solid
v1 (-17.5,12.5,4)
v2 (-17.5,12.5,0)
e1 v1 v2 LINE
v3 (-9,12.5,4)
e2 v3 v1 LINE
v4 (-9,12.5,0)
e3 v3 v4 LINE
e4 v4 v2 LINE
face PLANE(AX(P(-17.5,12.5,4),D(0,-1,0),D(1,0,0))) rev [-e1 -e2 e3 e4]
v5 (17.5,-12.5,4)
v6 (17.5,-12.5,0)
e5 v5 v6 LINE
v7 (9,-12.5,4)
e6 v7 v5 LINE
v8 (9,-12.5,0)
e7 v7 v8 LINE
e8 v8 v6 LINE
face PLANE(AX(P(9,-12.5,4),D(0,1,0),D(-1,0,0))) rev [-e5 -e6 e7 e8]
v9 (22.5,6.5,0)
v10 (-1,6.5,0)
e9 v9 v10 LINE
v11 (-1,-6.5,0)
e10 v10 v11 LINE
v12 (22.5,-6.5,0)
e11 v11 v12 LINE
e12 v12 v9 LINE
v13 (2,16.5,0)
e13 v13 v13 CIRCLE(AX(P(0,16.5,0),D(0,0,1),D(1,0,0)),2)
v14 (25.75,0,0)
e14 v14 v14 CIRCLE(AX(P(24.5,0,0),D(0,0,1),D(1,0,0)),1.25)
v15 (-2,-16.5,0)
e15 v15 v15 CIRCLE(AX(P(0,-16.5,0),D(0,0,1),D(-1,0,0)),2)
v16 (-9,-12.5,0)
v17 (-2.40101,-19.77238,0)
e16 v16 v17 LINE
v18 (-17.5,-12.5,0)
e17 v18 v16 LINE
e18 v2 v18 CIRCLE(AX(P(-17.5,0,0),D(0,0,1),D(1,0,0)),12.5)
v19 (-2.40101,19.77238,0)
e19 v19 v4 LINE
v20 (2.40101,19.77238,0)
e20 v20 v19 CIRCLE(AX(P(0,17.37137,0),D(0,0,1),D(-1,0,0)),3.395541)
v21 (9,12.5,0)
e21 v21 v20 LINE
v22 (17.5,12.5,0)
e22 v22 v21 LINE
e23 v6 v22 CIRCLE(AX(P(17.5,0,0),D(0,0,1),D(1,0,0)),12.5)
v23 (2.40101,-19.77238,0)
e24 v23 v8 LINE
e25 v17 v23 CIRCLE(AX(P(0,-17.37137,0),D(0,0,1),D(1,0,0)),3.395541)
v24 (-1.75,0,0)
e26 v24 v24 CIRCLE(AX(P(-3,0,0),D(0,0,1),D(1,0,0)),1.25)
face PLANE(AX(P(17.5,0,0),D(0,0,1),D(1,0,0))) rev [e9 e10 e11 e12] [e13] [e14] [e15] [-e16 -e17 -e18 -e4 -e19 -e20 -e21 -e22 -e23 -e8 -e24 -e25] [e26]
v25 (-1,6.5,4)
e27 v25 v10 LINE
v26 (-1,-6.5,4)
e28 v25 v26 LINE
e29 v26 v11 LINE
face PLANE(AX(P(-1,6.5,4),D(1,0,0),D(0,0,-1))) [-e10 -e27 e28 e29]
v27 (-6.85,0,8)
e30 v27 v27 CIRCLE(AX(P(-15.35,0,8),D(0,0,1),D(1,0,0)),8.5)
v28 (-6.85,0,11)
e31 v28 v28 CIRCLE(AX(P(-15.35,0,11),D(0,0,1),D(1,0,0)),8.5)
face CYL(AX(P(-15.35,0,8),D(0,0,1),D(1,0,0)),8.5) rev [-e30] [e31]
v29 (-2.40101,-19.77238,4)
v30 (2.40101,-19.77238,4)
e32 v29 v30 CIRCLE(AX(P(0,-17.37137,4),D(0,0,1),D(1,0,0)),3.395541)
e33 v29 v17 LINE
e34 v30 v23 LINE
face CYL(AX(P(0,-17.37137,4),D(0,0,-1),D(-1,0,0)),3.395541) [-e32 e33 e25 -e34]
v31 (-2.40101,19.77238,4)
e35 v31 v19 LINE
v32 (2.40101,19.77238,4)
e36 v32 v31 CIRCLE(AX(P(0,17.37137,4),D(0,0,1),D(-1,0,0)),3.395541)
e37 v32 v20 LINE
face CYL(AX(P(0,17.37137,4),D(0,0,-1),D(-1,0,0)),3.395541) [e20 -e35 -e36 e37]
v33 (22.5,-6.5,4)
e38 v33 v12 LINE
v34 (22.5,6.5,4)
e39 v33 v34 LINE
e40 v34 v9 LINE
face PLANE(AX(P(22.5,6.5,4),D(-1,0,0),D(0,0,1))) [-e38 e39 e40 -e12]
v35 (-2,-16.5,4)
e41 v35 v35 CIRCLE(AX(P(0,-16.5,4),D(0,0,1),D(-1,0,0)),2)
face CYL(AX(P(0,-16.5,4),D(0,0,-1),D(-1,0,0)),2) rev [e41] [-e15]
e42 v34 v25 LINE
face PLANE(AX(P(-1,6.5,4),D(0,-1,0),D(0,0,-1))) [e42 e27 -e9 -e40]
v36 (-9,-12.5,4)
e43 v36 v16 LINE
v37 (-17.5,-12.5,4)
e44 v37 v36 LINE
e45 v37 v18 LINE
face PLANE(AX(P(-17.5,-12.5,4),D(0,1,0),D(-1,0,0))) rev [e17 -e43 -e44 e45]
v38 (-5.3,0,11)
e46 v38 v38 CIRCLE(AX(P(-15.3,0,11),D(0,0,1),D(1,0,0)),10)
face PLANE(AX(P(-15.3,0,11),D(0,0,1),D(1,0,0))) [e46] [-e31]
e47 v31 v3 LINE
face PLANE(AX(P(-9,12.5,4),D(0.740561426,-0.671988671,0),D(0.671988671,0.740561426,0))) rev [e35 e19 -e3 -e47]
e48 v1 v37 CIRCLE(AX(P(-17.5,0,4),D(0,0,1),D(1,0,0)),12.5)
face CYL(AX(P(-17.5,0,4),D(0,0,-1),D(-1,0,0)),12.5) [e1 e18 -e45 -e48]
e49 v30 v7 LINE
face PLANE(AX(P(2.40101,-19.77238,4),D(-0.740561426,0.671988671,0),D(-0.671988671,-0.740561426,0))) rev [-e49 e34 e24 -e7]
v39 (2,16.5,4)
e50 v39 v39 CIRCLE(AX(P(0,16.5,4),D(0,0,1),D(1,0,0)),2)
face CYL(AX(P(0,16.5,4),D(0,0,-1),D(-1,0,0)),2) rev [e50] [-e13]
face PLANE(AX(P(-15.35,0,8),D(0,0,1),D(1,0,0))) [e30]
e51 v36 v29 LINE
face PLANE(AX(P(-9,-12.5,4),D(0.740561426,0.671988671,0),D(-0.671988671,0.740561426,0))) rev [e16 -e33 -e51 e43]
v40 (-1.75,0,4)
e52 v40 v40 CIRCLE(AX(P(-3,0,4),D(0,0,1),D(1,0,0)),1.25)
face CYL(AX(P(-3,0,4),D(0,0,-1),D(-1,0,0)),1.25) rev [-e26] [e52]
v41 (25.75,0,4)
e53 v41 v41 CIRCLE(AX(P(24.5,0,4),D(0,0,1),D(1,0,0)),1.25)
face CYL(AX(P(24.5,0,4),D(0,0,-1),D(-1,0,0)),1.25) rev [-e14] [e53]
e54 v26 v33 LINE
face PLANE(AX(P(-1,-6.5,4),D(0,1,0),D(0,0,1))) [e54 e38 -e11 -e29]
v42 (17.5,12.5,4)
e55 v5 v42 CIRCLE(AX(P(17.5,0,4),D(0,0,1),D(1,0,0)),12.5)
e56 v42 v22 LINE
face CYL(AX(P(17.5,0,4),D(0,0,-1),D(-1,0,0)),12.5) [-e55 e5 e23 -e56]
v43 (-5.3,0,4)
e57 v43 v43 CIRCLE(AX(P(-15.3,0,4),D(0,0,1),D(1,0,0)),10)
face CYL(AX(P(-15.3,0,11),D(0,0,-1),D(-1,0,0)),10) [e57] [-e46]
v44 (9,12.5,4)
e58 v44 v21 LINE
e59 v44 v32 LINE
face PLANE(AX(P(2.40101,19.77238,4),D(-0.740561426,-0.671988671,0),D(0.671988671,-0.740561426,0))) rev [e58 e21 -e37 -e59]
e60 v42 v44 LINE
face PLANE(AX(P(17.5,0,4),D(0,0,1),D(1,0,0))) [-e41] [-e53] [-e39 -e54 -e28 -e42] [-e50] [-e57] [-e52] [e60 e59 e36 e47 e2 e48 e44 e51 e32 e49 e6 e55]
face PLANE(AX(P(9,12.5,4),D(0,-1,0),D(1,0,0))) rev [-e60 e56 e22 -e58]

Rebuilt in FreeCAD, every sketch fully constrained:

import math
import FreeCAD as App
import Part
import Sketcher
from FreeCAD import Vector
Q = App.Units.Quantity

doc = App.newDocument("Part")
params = doc.addObject("Spreadsheet::Sheet", "Params")
for row, (alias, value) in enumerate([
    ("sketch1_diameter", "4 mm"),
    ("sketch1_diameter2", "2.5 mm"),
    ("sketch1_radius", "12.5 mm"),
    ("sketch1_height", "13 mm"),
    ("sketch1_width", "8.5 mm"),
    ("pad1_length", "4 mm"),
    ("sketch2_diameter", "20 mm"),
    ("pad2_length", "7 mm"),
    ("sketch3_diameter", "17 mm"),
    ("pocket1_length", "3 mm"),
], start=1):
    params.set(f"A{row}", alias)
    params.set(f"B{row}", "=" + value)
    params.setAlias(f"B{row}", alias)

body = doc.addObject("PartDesign::Body", "Body")

# Sketch on XY plane
sketch1 = doc.addObject("Sketcher::SketchObject", "Sketch")
body.addObject(sketch1)
sketch1.AttachmentSupport = (doc.XY_Plane, [""])
sketch1.MapMode = "FlatFace"
sketch1.addGeometry(Part.LineSegment(Vector(-2.4, 19.8, 0), Vector(-9, 12.5, 0)), False)
sketch1.addGeometry(Part.LineSegment(Vector(-9, 12.5, 0), Vector(-17.5, 12.5, 0)), False)
sketch1.addGeometry(Part.ArcOfCircle(Part.Circle(Vector(-17.5, 0, 0), Vector(0, 0, 1), 12.5), math.radians(90), math.radians(270)), False)
sketch1.addGeometry(Part.LineSegment(Vector(-17.5, -12.5, 0), Vector(-9, -12.5, 0)), False)
sketch1.addGeometry(Part.LineSegment(Vector(-9, -12.5, 0), Vector(-2.4, -19.8, 0)), False)
sketch1.addGeometry(Part.ArcOfCircle(Part.Circle(Vector(0, -17.4, 0), Vector(0, 0, 1), 3.4), math.radians(-135), math.radians(-45)), False)
sketch1.addGeometry(Part.LineSegment(Vector(2.4, -19.8, 0), Vector(9, -12.5, 0)), False)
sketch1.addGeometry(Part.LineSegment(Vector(9, -12.5, 0), Vector(17.5, -12.5, 0)), False)
sketch1.addGeometry(Part.ArcOfCircle(Part.Circle(Vector(17.5, 0, 0), Vector(0, 0, 1), 12.5), math.radians(-90), math.radians(90)), False)
sketch1.addGeometry(Part.LineSegment(Vector(17.5, 12.5, 0), Vector(9, 12.5, 0)), False)
sketch1.addGeometry(Part.LineSegment(Vector(9, 12.5, 0), Vector(2.4, 19.8, 0)), False)
sketch1.addGeometry(Part.ArcOfCircle(Part.Circle(Vector(0, 17.4, 0), Vector(0, 0, 1), 3.4), math.radians(45), math.radians(135)), False)
sketch1.addGeometry(Part.Circle(Vector(0, -16.5, 0), Vector(0, 0, 1), 2), False)
sketch1.addGeometry(Part.Circle(Vector(24.5, 0, 0), Vector(0, 0, 1), 1.2), False)
sketch1.addGeometry(Part.LineSegment(Vector(-1, -6.5, 0), Vector(-1, 6.5, 0)), False)
sketch1.addGeometry(Part.LineSegment(Vector(-1, 6.5, 0), Vector(22.5, 6.5, 0)), False)
sketch1.addGeometry(Part.LineSegment(Vector(22.5, 6.5, 0), Vector(22.5, -6.5, 0)), False)
sketch1.addGeometry(Part.LineSegment(Vector(22.5, -6.5, 0), Vector(-1, -6.5, 0)), False)
sketch1.addGeometry(Part.Circle(Vector(-3, 0, 0), Vector(0, 0, 1), 1.2), False)
sketch1.addGeometry(Part.Circle(Vector(0, 16.5, 0), Vector(0, 0, 1), 2), False)
sketch1.addConstraint(Sketcher.Constraint("Coincident", 0, 2, 1, 1))
sketch1.addConstraint(Sketcher.Constraint("Tangent", 1, 2, 2, 1))
sketch1.addConstraint(Sketcher.Constraint("Tangent", 2, 2, 3, 1))
sketch1.addConstraint(Sketcher.Constraint("Coincident", 3, 2, 4, 1))
sketch1.addConstraint(Sketcher.Constraint("Coincident", 4, 2, 5, 1))
sketch1.addConstraint(Sketcher.Constraint("Coincident", 5, 2, 6, 1))
sketch1.addConstraint(Sketcher.Constraint("Coincident", 6, 2, 7, 1))
sketch1.addConstraint(Sketcher.Constraint("Tangent", 7, 2, 8, 1))
sketch1.addConstraint(Sketcher.Constraint("Tangent", 8, 2, 9, 1))
sketch1.addConstraint(Sketcher.Constraint("Coincident", 9, 2, 10, 1))
sketch1.addConstraint(Sketcher.Constraint("Coincident", 10, 2, 11, 1))
sketch1.addConstraint(Sketcher.Constraint("Coincident", 11, 2, 0, 1))
sketch1.addConstraint(Sketcher.Constraint("Coincident", 14, 2, 15, 1))
sketch1.addConstraint(Sketcher.Constraint("Coincident", 15, 2, 16, 1))
sketch1.addConstraint(Sketcher.Constraint("Coincident", 16, 2, 17, 1))
sketch1.addConstraint(Sketcher.Constraint("Coincident", 17, 2, 14, 1))
sketch1.addConstraint(Sketcher.Constraint("Horizontal", 1))
sketch1.addConstraint(Sketcher.Constraint("Horizontal", 3))
sketch1.addConstraint(Sketcher.Constraint("Horizontal", 7))
sketch1.addConstraint(Sketcher.Constraint("Horizontal", 9))
sketch1.addConstraint(Sketcher.Constraint("Vertical", 14))
sketch1.addConstraint(Sketcher.Constraint("Horizontal", 15))
sketch1.addConstraint(Sketcher.Constraint("Vertical", 16))
sketch1.addConstraint(Sketcher.Constraint("Horizontal", 17))
sketch1.addConstraint(Sketcher.Constraint("Equal", 2, 8))
sketch1.addConstraint(Sketcher.Constraint("Equal", 5, 11))
sketch1.addConstraint(Sketcher.Constraint("Equal", 13, 18))
sketch1.addConstraint(Sketcher.Constraint("Equal", 12, 19))
sketch1.addConstraint(Sketcher.Constraint("Symmetric", 2, 3, 8, 3, -1, 1))
sketch1.addConstraint(Sketcher.Constraint("Symmetric", 5, 3, 11, 3, -1, 1))
sketch1.addConstraint(Sketcher.Constraint("Symmetric", 12, 3, 19, 3, -1, 1))
sketch1.addConstraint(Sketcher.Constraint("Symmetric", 4, 2, 5, 2, -2))
sketch1.addConstraint(Sketcher.Constraint("Symmetric", 3, 2, 6, 2, -2))
sketch1.addConstraint(Sketcher.Constraint("PointOnObject", 12, 3, -2))
sketch1.addConstraint(Sketcher.Constraint("PointOnObject", 13, 3, -1))
sketch1.addConstraint(Sketcher.Constraint("PointOnObject", 18, 3, -1))
sketch1.addConstraint(Sketcher.Constraint("Parallel", 0, 6))
sketch1.addConstraint(Sketcher.Constraint("Parallel", 4, 10))
sketch1.addConstraint(Sketcher.Constraint("Horizontal", 10, 2, 11, 2))
sketch1.addConstraint(Sketcher.Constraint("Vertical", 0, 2, 3, 2))
sketch1.addConstraint(Sketcher.Constraint("Diameter", 12, Q("4 mm")))
sketch1.addConstraint(Sketcher.Constraint("Diameter", 13, Q("2.5 mm")))
sketch1.addConstraint(Sketcher.Constraint("Radius", 2, Q("12.5 mm")))
sketch1.addConstraint(Sketcher.Constraint("DistanceY", 14, 1, 14, 2, Q("13 mm")))
sketch1.addConstraint(Sketcher.Constraint("DistanceX", 1, 2, 1, 1, Q("8.5 mm")))
sketch1.addConstraint(Sketcher.Constraint("DistanceX", 15, 1, 15, 2, Q("23.5 mm")))
sketch1.addConstraint(Sketcher.Constraint("DistanceX", 18, 3, -1, 1, Q("3 mm")))
sketch1.addConstraint(Sketcher.Constraint("DistanceX", 0, 2, -1, 1, Q("9 mm")))
sketch1.addConstraint(Sketcher.Constraint("DistanceX", 14, 2, -1, 1, Q("1 mm")))
sketch1.addConstraint(Sketcher.Constraint("DistanceX", 8, 3, 13, 3, Q("7 mm")))
sketch1.addConstraint(Sketcher.Constraint("DistanceY", 0, 2, 19, 3, Q("4 mm")))
sketch1.addConstraint(Sketcher.Constraint("DistanceY", 14, 2, 0, 2, Q("6 mm")))
sketch1.addConstraint(Sketcher.Constraint("Radius", 5, Q("3.395541 mm")))
sketch1.addConstraint(Sketcher.Constraint("Distance", 0, Q("9.820091 mm")))
sketch1.addConstraint(Sketcher.Constraint("DistanceY", 5, 3, -1, 1, Q("17.37137 mm")))
sketch1.setExpression("Constraints[40]", "Params.sketch1_diameter")
sketch1.setExpression("Constraints[41]", "Params.sketch1_diameter2")
sketch1.setExpression("Constraints[42]", "Params.sketch1_radius")
sketch1.setExpression("Constraints[43]", "Params.sketch1_height")
sketch1.setExpression("Constraints[44]", "Params.sketch1_width")
pad1 = doc.addObject("PartDesign::Pad", "Pad")
body.addObject(pad1)
pad1.Profile = sketch1
pad1.setExpression("Length", "Params.pad1_length")

# Sketch on XY plane
sketch2 = doc.addObject("Sketcher::SketchObject", "Sketch001")
body.addObject(sketch2)
sketch2.AttachmentSupport = (doc.XY_Plane, [""])
sketch2.MapMode = "FlatFace"
sketch2.AttachmentOffset = App.Placement(Vector(0, 0, 4), App.Rotation())
sketch2.addGeometry(Part.Circle(Vector(-15, 0, 0), Vector(0, 0, 1), 10), False)
sketch2.addConstraint(Sketcher.Constraint("PointOnObject", 0, 3, -1))
sketch2.addConstraint(Sketcher.Constraint("Diameter", 0, Q("20 mm")))
sketch2.addConstraint(Sketcher.Constraint("DistanceX", 0, 3, -1, 1, Q("15.3 mm")))
sketch2.setExpression("Constraints[1]", "Params.sketch2_diameter")
pad2 = doc.addObject("PartDesign::Pad", "Pad001")
body.addObject(pad2)
pad2.Profile = sketch2
pad2.setExpression("Length", "Params.pad2_length")

# Sketch on XY plane
sketch3 = doc.addObject("Sketcher::SketchObject", "Sketch002")
body.addObject(sketch3)
sketch3.AttachmentSupport = (doc.XY_Plane, [""])
sketch3.MapMode = "FlatFace"
sketch3.AttachmentOffset = App.Placement(Vector(0, 0, 11), App.Rotation())
sketch3.addGeometry(Part.Circle(Vector(-15, 0, 0), Vector(0, 0, 1), 8), False)
sketch3.addConstraint(Sketcher.Constraint("PointOnObject", 0, 3, -1))
sketch3.addConstraint(Sketcher.Constraint("Diameter", 0, Q("17 mm")))
sketch3.addConstraint(Sketcher.Constraint("DistanceX", 0, 3, -1, 1, Q("15.35 mm")))
sketch3.setExpression("Constraints[1]", "Params.sketch3_diameter")
pocket1 = doc.addObject("PartDesign::Pocket", "Pocket")
body.addObject(pocket1)
pocket1.Profile = sketch3
pocket1.setExpression("Length", "Params.pocket1_length")

doc.recompute()
